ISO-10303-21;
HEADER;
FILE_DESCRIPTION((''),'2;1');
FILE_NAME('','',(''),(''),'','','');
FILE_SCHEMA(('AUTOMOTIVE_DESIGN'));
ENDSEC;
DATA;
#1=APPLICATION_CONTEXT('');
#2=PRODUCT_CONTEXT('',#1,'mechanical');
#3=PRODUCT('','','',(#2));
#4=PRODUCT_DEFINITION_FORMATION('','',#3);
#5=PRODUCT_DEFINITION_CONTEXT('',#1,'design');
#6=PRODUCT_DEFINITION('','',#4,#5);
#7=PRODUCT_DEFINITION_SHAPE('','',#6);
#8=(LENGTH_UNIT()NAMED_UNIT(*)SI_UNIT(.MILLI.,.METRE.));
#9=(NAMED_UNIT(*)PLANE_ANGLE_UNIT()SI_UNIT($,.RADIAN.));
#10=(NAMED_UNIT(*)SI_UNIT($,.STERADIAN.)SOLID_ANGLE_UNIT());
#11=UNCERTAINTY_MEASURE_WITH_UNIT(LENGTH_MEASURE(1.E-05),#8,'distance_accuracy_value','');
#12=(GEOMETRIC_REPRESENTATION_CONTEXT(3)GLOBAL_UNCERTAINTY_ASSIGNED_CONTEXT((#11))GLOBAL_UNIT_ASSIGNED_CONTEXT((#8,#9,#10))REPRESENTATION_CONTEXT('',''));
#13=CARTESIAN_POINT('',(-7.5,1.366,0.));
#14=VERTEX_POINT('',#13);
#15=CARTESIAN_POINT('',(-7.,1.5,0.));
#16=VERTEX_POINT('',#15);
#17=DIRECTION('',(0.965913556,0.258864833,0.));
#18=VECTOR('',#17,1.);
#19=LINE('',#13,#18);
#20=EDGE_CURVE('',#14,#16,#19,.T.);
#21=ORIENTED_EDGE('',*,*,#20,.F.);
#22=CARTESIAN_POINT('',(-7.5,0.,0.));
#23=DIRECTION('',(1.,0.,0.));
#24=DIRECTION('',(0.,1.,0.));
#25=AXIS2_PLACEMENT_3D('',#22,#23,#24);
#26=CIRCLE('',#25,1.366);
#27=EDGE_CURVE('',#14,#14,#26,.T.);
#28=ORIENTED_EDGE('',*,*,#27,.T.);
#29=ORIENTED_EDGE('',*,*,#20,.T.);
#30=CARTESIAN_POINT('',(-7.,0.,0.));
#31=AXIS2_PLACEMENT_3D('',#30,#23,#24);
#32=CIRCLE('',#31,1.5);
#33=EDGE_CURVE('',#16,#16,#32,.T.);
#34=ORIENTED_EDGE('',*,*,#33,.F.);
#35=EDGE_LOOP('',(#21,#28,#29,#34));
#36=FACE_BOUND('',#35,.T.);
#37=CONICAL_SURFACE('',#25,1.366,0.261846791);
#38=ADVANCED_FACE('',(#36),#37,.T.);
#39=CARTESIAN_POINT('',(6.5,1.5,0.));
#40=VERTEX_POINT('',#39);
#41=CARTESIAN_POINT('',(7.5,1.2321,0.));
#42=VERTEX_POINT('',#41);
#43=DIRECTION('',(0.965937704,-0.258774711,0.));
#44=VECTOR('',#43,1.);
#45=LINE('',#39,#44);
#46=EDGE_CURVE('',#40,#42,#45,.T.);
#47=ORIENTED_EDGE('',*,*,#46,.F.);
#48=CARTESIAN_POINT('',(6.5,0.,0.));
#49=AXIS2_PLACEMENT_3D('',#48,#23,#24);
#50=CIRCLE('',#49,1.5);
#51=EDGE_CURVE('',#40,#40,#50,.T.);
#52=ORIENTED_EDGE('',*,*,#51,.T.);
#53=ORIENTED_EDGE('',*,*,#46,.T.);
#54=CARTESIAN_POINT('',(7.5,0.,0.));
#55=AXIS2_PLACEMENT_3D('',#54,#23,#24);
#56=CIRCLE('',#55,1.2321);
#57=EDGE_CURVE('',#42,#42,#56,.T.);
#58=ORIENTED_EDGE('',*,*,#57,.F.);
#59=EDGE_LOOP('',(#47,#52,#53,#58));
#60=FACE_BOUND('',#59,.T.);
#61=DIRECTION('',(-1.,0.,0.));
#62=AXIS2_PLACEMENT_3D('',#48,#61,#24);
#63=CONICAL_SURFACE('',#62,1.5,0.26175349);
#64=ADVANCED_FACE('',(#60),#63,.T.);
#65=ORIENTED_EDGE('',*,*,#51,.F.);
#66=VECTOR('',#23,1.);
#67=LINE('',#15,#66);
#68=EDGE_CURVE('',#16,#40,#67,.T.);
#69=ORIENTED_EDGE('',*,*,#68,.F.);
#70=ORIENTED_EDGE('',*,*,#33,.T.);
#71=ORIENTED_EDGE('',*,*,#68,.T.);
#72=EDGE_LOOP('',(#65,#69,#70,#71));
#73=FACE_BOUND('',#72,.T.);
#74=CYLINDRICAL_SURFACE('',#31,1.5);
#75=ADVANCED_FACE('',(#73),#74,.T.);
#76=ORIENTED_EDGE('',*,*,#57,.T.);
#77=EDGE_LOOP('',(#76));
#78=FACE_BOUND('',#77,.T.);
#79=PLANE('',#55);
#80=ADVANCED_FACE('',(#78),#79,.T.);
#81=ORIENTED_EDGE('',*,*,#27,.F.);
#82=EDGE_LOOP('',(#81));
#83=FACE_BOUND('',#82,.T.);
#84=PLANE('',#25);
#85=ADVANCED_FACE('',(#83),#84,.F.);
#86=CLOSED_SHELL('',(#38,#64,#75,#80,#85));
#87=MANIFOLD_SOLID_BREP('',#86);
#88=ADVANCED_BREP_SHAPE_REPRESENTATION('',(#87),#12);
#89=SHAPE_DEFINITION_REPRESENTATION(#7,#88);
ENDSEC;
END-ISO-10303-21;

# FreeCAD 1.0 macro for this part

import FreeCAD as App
import Part
import Sketcher
from FreeCAD import Vector
Q = App.Units.Quantity

doc = App.newDocument("Part")
body = doc.addObject("PartDesign::Body", "Body")

sketch1 = doc.addObject("Sketcher::SketchObject", "Sketch")
body.addObject(sketch1)
sketch1.AttachmentSupport = (doc.XY_Plane, [""])
sketch1.MapMode = "FlatFace"
sketch1.addGeometry(Part.LineSegment(Vector(-7.5, 0, 0), Vector(7.5, 0, 0)), False)
sketch1.addGeometry(Part.LineSegment(Vector(7.5, 0, 0), Vector(7.5, 1.2, 0)), False)
sketch1.addGeometry(Part.LineSegment(Vector(7.5, 1.2, 0), Vector(6.5, 1.5, 0)), False)
sketch1.addGeometry(Part.LineSegment(Vector(6.5, 1.5, 0), Vector(-7, 1.5, 0)), False)
sketch1.addGeometry(Part.LineSegment(Vector(-7, 1.5, 0), Vector(-7.5, 1.4, 0)), False)
sketch1.addGeometry(Part.LineSegment(Vector(-7.5, 1.4, 0), Vector(-7.5, 0, 0)), False)
sketch1.addConstraint(Sketcher.Constraint("Coincident", 0, 2, 1, 1))
sketch1.addConstraint(Sketcher.Constraint("Coincident", 1, 2, 2, 1))
sketch1.addConstraint(Sketcher.Constraint("Coincident", 2, 2, 3, 1))
sketch1.addConstraint(Sketcher.Constraint("Coincident", 3, 2, 4, 1))
sketch1.addConstraint(Sketcher.Constraint("Coincident", 4, 2, 5, 1))
sketch1.addConstraint(Sketcher.Constraint("Coincident", 5, 2, 0, 1))
sketch1.addConstraint(Sketcher.Constraint("Horizontal", 0))
sketch1.addConstraint(Sketcher.Constraint("Vertical", 1))
sketch1.addConstraint(Sketcher.Constraint("Horizontal", 3))
sketch1.addConstraint(Sketcher.Constraint("Vertical", 5))
sketch1.addConstraint(Sketcher.Constraint("Symmetric", 0, 2, 5, 2, -1, 1))
sketch1.addConstraint(Sketcher.Constraint("DistanceX", 0, 1, 0, 2, Q("15 mm")))
sketch1.addConstraint(Sketcher.Constraint("DistanceX", 3, 2, 3, 1, Q("13.5 mm")))
sketch1.addConstraint(Sketcher.Constraint("DistanceX", 3, 2, -1, 1, Q("7 mm")))
sketch1.addConstraint(Sketcher.Constraint("DistanceY", -1, 1, 2, 2, Q("1.5 mm")))
sketch1.addConstraint(Sketcher.Constraint("DistanceY", 1, 1, 1, 2, Q("1.232 mm")))
sketch1.addConstraint(Sketcher.Constraint("DistanceY", 5, 2, 5, 1, Q("1.366 mm")))
revolution = doc.addObject("PartDesign::Revolution", "Revolution")
body.addObject(revolution)
revolution.Profile = sketch1
revolution.ReferenceAxis = (sketch1, ["H_Axis"])
revolution.Angle = 360

doc.recompute()
